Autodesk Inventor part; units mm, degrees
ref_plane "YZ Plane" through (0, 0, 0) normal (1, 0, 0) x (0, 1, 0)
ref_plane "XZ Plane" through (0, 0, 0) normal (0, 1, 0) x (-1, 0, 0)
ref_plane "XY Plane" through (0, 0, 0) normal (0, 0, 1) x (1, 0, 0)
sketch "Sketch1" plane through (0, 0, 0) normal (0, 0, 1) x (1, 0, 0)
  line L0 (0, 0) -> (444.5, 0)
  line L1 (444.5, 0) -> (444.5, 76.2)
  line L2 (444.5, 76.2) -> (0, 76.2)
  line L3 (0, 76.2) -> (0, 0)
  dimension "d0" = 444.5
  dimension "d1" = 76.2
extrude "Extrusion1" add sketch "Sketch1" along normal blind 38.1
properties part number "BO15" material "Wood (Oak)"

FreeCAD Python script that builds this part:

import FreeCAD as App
import Part
import Sketcher

V = App.Vector
Q = App.Units.Quantity

doc = App.newDocument("Part")
body = doc.addObject("PartDesign::Body", "Body")

sketch1 = doc.addObject("Sketcher::SketchObject", "Sketch")
body.addObject(sketch1)
sketch1.AttachmentSupport = (doc.XY_Plane, [""])
sketch1.MapMode = "FlatFace"
sketch1.addGeometry(Part.LineSegment(V(0, 76, 0), V(0, 0, 0)), False)
sketch1.addGeometry(Part.LineSegment(V(0, 0, 0), V(444, 0, 0)), False)
sketch1.addGeometry(Part.LineSegment(V(444, 0, 0), V(444, 76, 0)), False)
sketch1.addGeometry(Part.LineSegment(V(444, 76, 0), V(0, 76, 0)), False)
sketch1.addConstraint(Sketcher.Constraint("Coincident", 0, 2, 1, 1))
sketch1.addConstraint(Sketcher.Constraint("Coincident", 1, 2, 2, 1))
sketch1.addConstraint(Sketcher.Constraint("Coincident", 2, 2, 3, 1))
sketch1.addConstraint(Sketcher.Constraint("Coincident", 3, 2, 0, 1))
sketch1.addConstraint(Sketcher.Constraint("Vertical", 0))
sketch1.addConstraint(Sketcher.Constraint("Horizontal", 1))
sketch1.addConstraint(Sketcher.Constraint("Vertical", 2))
sketch1.addConstraint(Sketcher.Constraint("Horizontal", 3))
sketch1.addConstraint(Sketcher.Constraint("Coincident", 0, 2, -1, 1))
sketch1.addConstraint(Sketcher.Constraint("DistanceY", 0, 2, 0, 1, Q("3 in")))
sketch1.addConstraint(Sketcher.Constraint("DistanceX", 1, 1, 1, 2, Q("17.5 in")))
pad1 = doc.addObject("PartDesign::Pad", "Pad")
body.addObject(pad1)
pad1.Profile = sketch1
pad1.Length = Q("1.5 in")

doc.recompute()
